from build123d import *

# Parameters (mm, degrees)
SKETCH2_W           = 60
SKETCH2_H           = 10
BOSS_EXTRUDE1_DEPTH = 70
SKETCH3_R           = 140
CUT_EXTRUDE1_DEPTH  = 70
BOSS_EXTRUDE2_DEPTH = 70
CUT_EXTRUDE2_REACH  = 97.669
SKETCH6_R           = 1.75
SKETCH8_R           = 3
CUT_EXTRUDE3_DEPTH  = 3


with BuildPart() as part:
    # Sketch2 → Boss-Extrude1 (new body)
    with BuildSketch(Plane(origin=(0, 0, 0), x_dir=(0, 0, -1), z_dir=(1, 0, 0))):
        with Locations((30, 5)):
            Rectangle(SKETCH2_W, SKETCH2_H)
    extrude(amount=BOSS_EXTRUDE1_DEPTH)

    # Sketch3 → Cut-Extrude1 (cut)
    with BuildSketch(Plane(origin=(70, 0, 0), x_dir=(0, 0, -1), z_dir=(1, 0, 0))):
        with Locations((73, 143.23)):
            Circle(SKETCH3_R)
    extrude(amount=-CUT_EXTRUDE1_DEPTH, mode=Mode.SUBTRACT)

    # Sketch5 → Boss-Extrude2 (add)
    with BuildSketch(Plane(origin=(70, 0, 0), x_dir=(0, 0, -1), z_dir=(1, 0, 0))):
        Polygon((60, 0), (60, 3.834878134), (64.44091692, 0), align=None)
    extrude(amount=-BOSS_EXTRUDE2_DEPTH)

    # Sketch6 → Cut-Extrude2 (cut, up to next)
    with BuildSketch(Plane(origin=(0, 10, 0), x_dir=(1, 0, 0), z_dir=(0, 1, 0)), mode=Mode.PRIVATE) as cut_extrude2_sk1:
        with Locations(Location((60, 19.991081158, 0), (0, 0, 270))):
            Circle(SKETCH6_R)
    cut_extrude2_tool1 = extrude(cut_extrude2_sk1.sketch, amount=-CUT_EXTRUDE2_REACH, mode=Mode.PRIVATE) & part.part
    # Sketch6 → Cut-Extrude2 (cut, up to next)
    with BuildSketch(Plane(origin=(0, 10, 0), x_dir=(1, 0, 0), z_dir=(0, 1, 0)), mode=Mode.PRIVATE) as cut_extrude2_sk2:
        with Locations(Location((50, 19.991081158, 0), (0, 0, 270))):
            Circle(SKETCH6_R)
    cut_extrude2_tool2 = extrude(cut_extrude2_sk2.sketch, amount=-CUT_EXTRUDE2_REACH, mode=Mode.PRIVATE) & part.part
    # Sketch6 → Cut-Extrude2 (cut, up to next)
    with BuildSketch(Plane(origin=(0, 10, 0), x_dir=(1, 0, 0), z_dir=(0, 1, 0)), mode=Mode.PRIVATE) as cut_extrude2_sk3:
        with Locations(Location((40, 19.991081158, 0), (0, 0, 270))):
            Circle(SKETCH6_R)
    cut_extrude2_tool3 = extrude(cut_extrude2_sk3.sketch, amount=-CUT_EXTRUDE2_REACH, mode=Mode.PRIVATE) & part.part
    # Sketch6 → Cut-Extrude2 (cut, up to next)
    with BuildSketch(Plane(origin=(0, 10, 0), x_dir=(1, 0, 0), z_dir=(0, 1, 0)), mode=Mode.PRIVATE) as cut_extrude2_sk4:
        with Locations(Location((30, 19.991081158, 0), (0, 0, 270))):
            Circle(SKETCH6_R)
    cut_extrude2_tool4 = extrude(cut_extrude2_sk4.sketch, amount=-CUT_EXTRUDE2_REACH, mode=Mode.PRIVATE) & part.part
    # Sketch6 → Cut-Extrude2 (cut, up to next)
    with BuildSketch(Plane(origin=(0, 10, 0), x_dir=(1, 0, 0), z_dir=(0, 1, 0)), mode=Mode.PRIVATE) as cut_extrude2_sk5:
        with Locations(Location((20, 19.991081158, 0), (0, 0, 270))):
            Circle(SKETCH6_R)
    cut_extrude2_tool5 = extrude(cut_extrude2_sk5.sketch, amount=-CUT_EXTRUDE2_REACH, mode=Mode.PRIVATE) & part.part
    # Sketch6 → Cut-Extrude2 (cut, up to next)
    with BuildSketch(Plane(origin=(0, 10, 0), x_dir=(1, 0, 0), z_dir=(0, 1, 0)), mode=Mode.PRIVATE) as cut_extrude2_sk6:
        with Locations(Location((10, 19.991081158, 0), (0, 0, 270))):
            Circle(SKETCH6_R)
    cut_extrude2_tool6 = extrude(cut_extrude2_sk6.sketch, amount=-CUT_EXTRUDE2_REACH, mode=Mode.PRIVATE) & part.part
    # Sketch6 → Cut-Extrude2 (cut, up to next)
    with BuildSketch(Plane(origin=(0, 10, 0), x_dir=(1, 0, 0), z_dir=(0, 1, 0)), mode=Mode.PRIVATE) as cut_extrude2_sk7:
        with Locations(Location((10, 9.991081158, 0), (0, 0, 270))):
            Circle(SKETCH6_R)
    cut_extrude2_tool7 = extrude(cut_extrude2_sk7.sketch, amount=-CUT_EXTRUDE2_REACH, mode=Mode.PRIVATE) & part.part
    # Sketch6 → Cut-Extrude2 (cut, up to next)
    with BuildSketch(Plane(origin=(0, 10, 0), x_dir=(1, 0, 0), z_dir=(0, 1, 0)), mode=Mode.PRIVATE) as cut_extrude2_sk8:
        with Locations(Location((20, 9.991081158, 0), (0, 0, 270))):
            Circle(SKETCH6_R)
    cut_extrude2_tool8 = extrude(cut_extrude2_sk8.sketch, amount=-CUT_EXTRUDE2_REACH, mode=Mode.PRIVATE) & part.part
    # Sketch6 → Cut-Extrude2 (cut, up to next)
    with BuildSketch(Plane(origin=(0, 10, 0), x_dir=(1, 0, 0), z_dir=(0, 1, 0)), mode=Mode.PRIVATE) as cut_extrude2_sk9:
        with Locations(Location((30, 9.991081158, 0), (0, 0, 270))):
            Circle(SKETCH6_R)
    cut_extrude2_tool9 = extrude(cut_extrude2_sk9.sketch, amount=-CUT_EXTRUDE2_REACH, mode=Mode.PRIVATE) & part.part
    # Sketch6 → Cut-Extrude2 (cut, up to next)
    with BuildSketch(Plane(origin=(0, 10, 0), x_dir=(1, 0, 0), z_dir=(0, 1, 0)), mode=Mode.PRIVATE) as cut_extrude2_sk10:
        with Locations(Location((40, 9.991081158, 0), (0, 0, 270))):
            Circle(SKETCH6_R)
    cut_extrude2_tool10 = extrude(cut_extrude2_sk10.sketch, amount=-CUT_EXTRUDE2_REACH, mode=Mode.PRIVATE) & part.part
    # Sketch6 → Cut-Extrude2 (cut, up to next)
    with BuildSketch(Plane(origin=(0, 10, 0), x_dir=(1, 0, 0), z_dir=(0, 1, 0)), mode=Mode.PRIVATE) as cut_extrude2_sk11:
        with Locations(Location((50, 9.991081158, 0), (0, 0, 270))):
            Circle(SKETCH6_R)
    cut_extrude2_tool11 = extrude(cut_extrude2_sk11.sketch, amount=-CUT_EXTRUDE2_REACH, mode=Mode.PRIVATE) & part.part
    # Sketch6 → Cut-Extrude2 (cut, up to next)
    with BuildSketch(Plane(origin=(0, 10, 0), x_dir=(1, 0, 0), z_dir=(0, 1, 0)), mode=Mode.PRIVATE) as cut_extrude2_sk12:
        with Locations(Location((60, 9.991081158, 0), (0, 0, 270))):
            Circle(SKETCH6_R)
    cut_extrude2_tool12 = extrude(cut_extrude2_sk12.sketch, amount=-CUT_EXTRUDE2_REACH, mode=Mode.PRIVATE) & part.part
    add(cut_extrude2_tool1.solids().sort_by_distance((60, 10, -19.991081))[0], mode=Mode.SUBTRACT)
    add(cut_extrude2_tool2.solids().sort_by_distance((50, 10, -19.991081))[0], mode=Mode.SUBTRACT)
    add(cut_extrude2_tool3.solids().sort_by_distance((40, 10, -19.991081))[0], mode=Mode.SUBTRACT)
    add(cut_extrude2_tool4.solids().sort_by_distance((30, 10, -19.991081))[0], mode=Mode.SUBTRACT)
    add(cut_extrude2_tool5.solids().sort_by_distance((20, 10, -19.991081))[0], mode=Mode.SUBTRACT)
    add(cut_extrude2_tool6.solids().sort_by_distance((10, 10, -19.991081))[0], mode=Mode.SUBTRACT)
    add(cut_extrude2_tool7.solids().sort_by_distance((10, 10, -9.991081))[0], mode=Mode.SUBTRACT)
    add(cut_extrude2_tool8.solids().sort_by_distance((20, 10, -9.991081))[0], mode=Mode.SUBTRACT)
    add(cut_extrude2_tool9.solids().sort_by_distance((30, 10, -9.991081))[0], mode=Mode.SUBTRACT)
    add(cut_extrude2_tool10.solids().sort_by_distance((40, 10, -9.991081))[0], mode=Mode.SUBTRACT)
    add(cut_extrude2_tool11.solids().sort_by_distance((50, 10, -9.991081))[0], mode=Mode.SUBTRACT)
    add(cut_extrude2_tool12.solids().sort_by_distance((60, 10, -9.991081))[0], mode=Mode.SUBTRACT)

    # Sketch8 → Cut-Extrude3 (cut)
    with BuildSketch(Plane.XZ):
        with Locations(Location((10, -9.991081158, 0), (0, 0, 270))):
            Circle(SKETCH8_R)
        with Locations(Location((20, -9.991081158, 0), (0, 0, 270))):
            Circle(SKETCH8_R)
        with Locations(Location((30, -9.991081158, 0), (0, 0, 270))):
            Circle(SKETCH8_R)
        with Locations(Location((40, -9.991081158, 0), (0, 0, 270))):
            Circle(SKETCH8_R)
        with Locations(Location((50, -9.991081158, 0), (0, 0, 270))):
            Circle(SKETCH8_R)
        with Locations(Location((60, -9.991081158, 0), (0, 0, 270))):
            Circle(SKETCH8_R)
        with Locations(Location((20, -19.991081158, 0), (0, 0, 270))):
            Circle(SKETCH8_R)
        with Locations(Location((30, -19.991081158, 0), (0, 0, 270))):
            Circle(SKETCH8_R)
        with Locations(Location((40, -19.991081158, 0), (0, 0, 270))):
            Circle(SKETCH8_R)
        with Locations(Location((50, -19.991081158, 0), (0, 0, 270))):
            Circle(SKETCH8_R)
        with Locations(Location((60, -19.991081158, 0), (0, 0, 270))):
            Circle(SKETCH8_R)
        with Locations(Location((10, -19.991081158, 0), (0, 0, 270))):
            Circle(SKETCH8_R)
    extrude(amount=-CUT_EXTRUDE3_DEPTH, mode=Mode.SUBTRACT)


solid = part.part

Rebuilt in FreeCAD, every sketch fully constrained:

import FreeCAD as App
import Part
import Sketcher
from FreeCAD import Vector

doc = App.newDocument("Part")
body = doc.addObject("PartDesign::Body", "Body")

# Sketch on YZ plane
sketch1 = body.newObject("Sketcher::SketchObject", "Sketch")
sketch1.AttachmentSupport = (doc.getObject("YZ_Plane"), [""])
sketch1.MapMode = "FlatFace"
sketch1.addGeometry([
    Part.LineSegment(Vector(10, 0, 0), Vector(0, 0, 0)),
    Part.LineSegment(Vector(0, 0, 0), Vector(0, -60, 0)),
    Part.LineSegment(Vector(0, -60, 0), Vector(10, -60, 0)),
    Part.LineSegment(Vector(10, -60, 0), Vector(10, 0, 0)),
], False)
sketch1.addConstraint([
    Sketcher.Constraint("Coincident", 0, 2, 1, 1),
    Sketcher.Constraint("Coincident", 1, 2, 2, 1),
    Sketcher.Constraint("Coincident", 2, 2, 3, 1),
    Sketcher.Constraint("Coincident", 3, 2, 0, 1),
    Sketcher.Constraint("Horizontal", 0),
    Sketcher.Constraint("Vertical", 1),
    Sketcher.Constraint("Horizontal", 2),
    Sketcher.Constraint("Vertical", 3),
    Sketcher.Constraint("Coincident", 0, 2, -1, 1),
    Sketcher.Constraint("DistanceX", 0, 2, 0, 1, 10.0),
    Sketcher.Constraint("DistanceY", 1, 2, 1, 1, 60.0),
])
pad1 = body.newObject("PartDesign::Pad", "Pad")
pad1.Profile = sketch1
pad1.Length = 70

# Sketch on YZ plane
sketch2 = body.newObject("Sketcher::SketchObject", "Sketch001")
sketch2.AttachmentSupport = (doc.getObject("YZ_Plane"), [""])
sketch2.MapMode = "FlatFace"
sketch2.AttachmentOffset = App.Placement(Vector(0, 0, 70), App.Rotation())
sketch2.addGeometry(Part.Circle(Vector(143, -73, 0), Vector(0, 0, 1), 140), False)
sketch2.addConstraint([
    Sketcher.Constraint("Diameter", 0, 280.0),
    Sketcher.Constraint("DistanceY", 0, 3, -1, 1, 73.0),
    Sketcher.Constraint("DistanceX", -1, 1, 0, 3, 143.23),
])
pocket1 = body.newObject("PartDesign::Pocket", "Pocket")
pocket1.Profile = sketch2
pocket1.Length = 70

# Sketch on YZ plane
sketch3 = body.newObject("Sketcher::SketchObject", "Sketch002")
sketch3.AttachmentSupport = (doc.getObject("YZ_Plane"), [""])
sketch3.MapMode = "FlatFace"
sketch3.AttachmentOffset = App.Placement(Vector(0, 0, 70), App.Rotation())
sketch3.addGeometry([
    Part.LineSegment(Vector(3.8, -60, 0), Vector(0, -60, 0)),
    Part.LineSegment(Vector(0, -60, 0), Vector(0, -64.4, 0)),
    Part.LineSegment(Vector(0, -64.4, 0), Vector(3.8, -60, 0)),
], False)
sketch3.addConstraint([
    Sketcher.Constraint("Coincident", 0, 2, 1, 1),
    Sketcher.Constraint("Coincident", 1, 2, 2, 1),
    Sketcher.Constraint("Coincident", 2, 2, 0, 1),
    Sketcher.Constraint("Horizontal", 0),
    Sketcher.Constraint("Vertical", 1),
    Sketcher.Constraint("PointOnObject", 0, 2, -2),
    Sketcher.Constraint("DistanceY", 0, 2, -1, 1, 60.0),
    Sketcher.Constraint("DistanceX", 0, 2, 0, 1, 3.834878),
    Sketcher.Constraint("Distance", 2, 5.867541),
])
pad2 = body.newObject("PartDesign::Pad", "Pad001")
pad2.Profile = sketch3
pad2.Length = 70
pad2.Reversed = True

# Sketch on XZ plane
sketch4 = body.newObject("Sketcher::SketchObject", "Sketch003")
sketch4.AttachmentSupport = (doc.getObject("XZ_Plane"), [""])
sketch4.MapMode = "FlatFace"
sketch4.AttachmentOffset = App.Placement(Vector(0, 0, -10), App.Rotation())
sketch4.addGeometry(Part.Circle(Vector(60, -20, 0), Vector(0, 0, 1), 1.8), False)
sketch4.addConstraint([
    Sketcher.Constraint("Diameter", 0, 3.5),
    Sketcher.Constraint("DistanceX", -1, 1, 0, 3, 60.0),
    Sketcher.Constraint("DistanceY", 0, 3, -1, 1, 19.991081),
])
pocket2 = body.newObject("PartDesign::Pocket", "Pocket001")
pocket2.Profile = sketch4
pocket2.Type = "UpToFirst"
pocket2.Reversed = True

# Sketch on XZ plane
sketch5 = body.newObject("Sketcher::SketchObject", "Sketch004")
sketch5.AttachmentSupport = (doc.getObject("XZ_Plane"), [""])
sketch5.MapMode = "FlatFace"
sketch5.AttachmentOffset = App.Placement(Vector(0, 0, -10), App.Rotation())
sketch5.addGeometry(Part.Circle(Vector(50, -20, 0), Vector(0, 0, 1), 1.8), False)
sketch5.addConstraint([
    Sketcher.Constraint("Diameter", 0, 3.5),
    Sketcher.Constraint("DistanceX", -1, 1, 0, 3, 50.0),
    Sketcher.Constraint("DistanceY", 0, 3, -1, 1, 19.991081),
])
pocket3 = body.newObject("PartDesign::Pocket", "Pocket002")
pocket3.Profile = sketch5
pocket3.Type = "UpToFirst"
pocket3.Reversed = True

# Sketch on XZ plane
sketch6 = body.newObject("Sketcher::SketchObject", "Sketch005")
sketch6.AttachmentSupport = (doc.getObject("XZ_Plane"), [""])
sketch6.MapMode = "FlatFace"
sketch6.AttachmentOffset = App.Placement(Vector(0, 0, -10), App.Rotation())
sketch6.addGeometry(Part.Circle(Vector(40, -20, 0), Vector(0, 0, 1), 1.8), False)
sketch6.addConstraint([
    Sketcher.Constraint("Diameter", 0, 3.5),
    Sketcher.Constraint("DistanceX", -1, 1, 0, 3, 40.0),
    Sketcher.Constraint("DistanceY", 0, 3, -1, 1, 19.991081),
])
pocket4 = body.newObject("PartDesign::Pocket", "Pocket003")
pocket4.Profile = sketch6
pocket4.Type = "UpToFirst"
pocket4.Reversed = True

# Sketch on XZ plane
sketch7 = body.newObject("Sketcher::SketchObject", "Sketch006")
sketch7.AttachmentSupport = (doc.getObject("XZ_Plane"), [""])
sketch7.MapMode = "FlatFace"
sketch7.AttachmentOffset = App.Placement(Vector(0, 0, -10), App.Rotation())
sketch7.addGeometry(Part.Circle(Vector(30, -20, 0), Vector(0, 0, 1), 1.8), False)
sketch7.addConstraint([
    Sketcher.Constraint("Diameter", 0, 3.5),
    Sketcher.Constraint("DistanceX", -1, 1, 0, 3, 30.0),
    Sketcher.Constraint("DistanceY", 0, 3, -1, 1, 19.991081),
])
pocket5 = body.newObject("PartDesign::Pocket", "Pocket004")
pocket5.Profile = sketch7
pocket5.Type = "UpToFirst"
pocket5.Reversed = True

# Sketch on XZ plane
sketch8 = body.newObject("Sketcher::SketchObject", "Sketch007")
sketch8.AttachmentSupport = (doc.getObject("XZ_Plane"), [""])
sketch8.MapMode = "FlatFace"
sketch8.AttachmentOffset = App.Placement(Vector(0, 0, -10), App.Rotation())
sketch8.addGeometry(Part.Circle(Vector(20, -20, 0), Vector(0, 0, 1), 1.8), False)
sketch8.addConstraint([
    Sketcher.Constraint("Diameter", 0, 3.5),
    Sketcher.Constraint("DistanceX", -1, 1, 0, 3, 20.0),
    Sketcher.Constraint("DistanceY", 0, 3, -1, 1, 19.991081),
])
pocket6 = body.newObject("PartDesign::Pocket", "Pocket005")
pocket6.Profile = sketch8
pocket6.Type = "UpToFirst"
pocket6.Reversed = True

# Sketch on XZ plane
sketch9 = body.newObject("Sketcher::SketchObject", "Sketch008")
sketch9.AttachmentSupport = (doc.getObject("XZ_Plane"), [""])
sketch9.MapMode = "FlatFace"
sketch9.AttachmentOffset = App.Placement(Vector(0, 0, -10), App.Rotation())
sketch9.addGeometry(Part.Circle(Vector(10, -20, 0), Vector(0, 0, 1), 1.8), False)
sketch9.addConstraint([
    Sketcher.Constraint("Diameter", 0, 3.5),
    Sketcher.Constraint("DistanceX", -1, 1, 0, 3, 10.0),
    Sketcher.Constraint("DistanceY", 0, 3, -1, 1, 19.991081),
])
pocket7 = body.newObject("PartDesign::Pocket", "Pocket006")
pocket7.Profile = sketch9
pocket7.Type = "UpToFirst"
pocket7.Reversed = True

# Sketch on XZ plane
sketch10 = body.newObject("Sketcher::SketchObject", "Sketch009")
sketch10.AttachmentSupport = (doc.getObject("XZ_Plane"), [""])
sketch10.MapMode = "FlatFace"
sketch10.AttachmentOffset = App.Placement(Vector(0, 0, -10), App.Rotation())
sketch10.addGeometry(Part.Circle(Vector(10, -10, 0), Vector(0, 0, 1), 1.8), False)
sketch10.addConstraint([
    Sketcher.Constraint("Diameter", 0, 3.5),
    Sketcher.Constraint("DistanceX", -1, 1, 0, 3, 10.0),
    Sketcher.Constraint("DistanceY", 0, 3, -1, 1, 9.991081),
])
pocket8 = body.newObject("PartDesign::Pocket", "Pocket007")
pocket8.Profile = sketch10
pocket8.Type = "UpToFirst"
pocket8.Reversed = True

# Sketch on XZ plane
sketch11 = body.newObject("Sketcher::SketchObject", "Sketch010")
sketch11.AttachmentSupport = (doc.getObject("XZ_Plane"), [""])
sketch11.MapMode = "FlatFace"
sketch11.AttachmentOffset = App.Placement(Vector(0, 0, -10), App.Rotation())
sketch11.addGeometry(Part.Circle(Vector(20, -10, 0), Vector(0, 0, 1), 1.8), False)
sketch11.addConstraint([
    Sketcher.Constraint("Diameter", 0, 3.5),
    Sketcher.Constraint("DistanceX", -1, 1, 0, 3, 20.0),
    Sketcher.Constraint("DistanceY", 0, 3, -1, 1, 9.991081),
])
pocket9 = body.newObject("PartDesign::Pocket", "Pocket008")
pocket9.Profile = sketch11
pocket9.Type = "UpToFirst"
pocket9.Reversed = True

# Sketch on XZ plane
sketch12 = body.newObject("Sketcher::SketchObject", "Sketch011")
sketch12.AttachmentSupport = (doc.getObject("XZ_Plane"), [""])
sketch12.MapMode = "FlatFace"
sketch12.AttachmentOffset = App.Placement(Vector(0, 0, -10), App.Rotation())
sketch12.addGeometry(Part.Circle(Vector(30, -10, 0), Vector(0, 0, 1), 1.8), False)
sketch12.addConstraint([
    Sketcher.Constraint("Diameter", 0, 3.5),
    Sketcher.Constraint("DistanceX", -1, 1, 0, 3, 30.0),
    Sketcher.Constraint("DistanceY", 0, 3, -1, 1, 9.991081),
])
pocket10 = body.newObject("PartDesign::Pocket", "Pocket009")
pocket10.Profile = sketch12
pocket10.Type = "UpToFirst"
pocket10.Reversed = True

# Sketch on XZ plane
sketch13 = body.newObject("Sketcher::SketchObject", "Sketch012")
sketch13.AttachmentSupport = (doc.getObject("XZ_Plane"), [""])
sketch13.MapMode = "FlatFace"
sketch13.AttachmentOffset = App.Placement(Vector(0, 0, -10), App.Rotation())
sketch13.addGeometry(Part.Circle(Vector(40, -10, 0), Vector(0, 0, 1), 1.8), False)
sketch13.addConstraint([
    Sketcher.Constraint("Diameter", 0, 3.5),
    Sketcher.Constraint("DistanceX", -1, 1, 0, 3, 40.0),
    Sketcher.Constraint("DistanceY", 0, 3, -1, 1, 9.991081),
])
pocket11 = body.newObject("PartDesign::Pocket", "Pocket010")
pocket11.Profile = sketch13
pocket11.Type = "UpToFirst"
pocket11.Reversed = True

# Sketch on XZ plane
sketch14 = body.newObject("Sketcher::SketchObject", "Sketch013")
sketch14.AttachmentSupport = (doc.getObject("XZ_Plane"), [""])
sketch14.MapMode = "FlatFace"
sketch14.AttachmentOffset = App.Placement(Vector(0, 0, -10), App.Rotation())
sketch14.addGeometry(Part.Circle(Vector(50, -10, 0), Vector(0, 0, 1), 1.8), False)
sketch14.addConstraint([
    Sketcher.Constraint("Diameter", 0, 3.5),
    Sketcher.Constraint("DistanceX", -1, 1, 0, 3, 50.0),
    Sketcher.Constraint("DistanceY", 0, 3, -1, 1, 9.991081),
])
pocket12 = body.newObject("PartDesign::Pocket", "Pocket011")
pocket12.Profile = sketch14
pocket12.Type = "UpToFirst"
pocket12.Reversed = True

# Sketch on XZ plane
sketch15 = body.newObject("Sketcher::SketchObject", "Sketch014")
sketch15.AttachmentSupport = (doc.getObject("XZ_Plane"), [""])
sketch15.MapMode = "FlatFace"
sketch15.AttachmentOffset = App.Placement(Vector(0, 0, -10), App.Rotation())
sketch15.addGeometry(Part.Circle(Vector(60, -10, 0), Vector(0, 0, 1), 1.8), False)
sketch15.addConstraint([
    Sketcher.Constraint("Diameter", 0, 3.5),
    Sketcher.Constraint("DistanceX", -1, 1, 0, 3, 60.0),
    Sketcher.Constraint("DistanceY", 0, 3, -1, 1, 9.991081),
])
pocket13 = body.newObject("PartDesign::Pocket", "Pocket012")
pocket13.Profile = sketch15
pocket13.Type = "UpToFirst"
pocket13.Reversed = True

# Sketch on XZ plane
sketch16 = body.newObject("Sketcher::SketchObject", "Sketch015")
sketch16.AttachmentSupport = (doc.getObject("XZ_Plane"), [""])
sketch16.MapMode = "FlatFace"
sketch16.addGeometry([
    Part.Circle(Vector(10, -10, 0), Vector(0, 0, 1), 3),  # 0
    Part.Circle(Vector(20, -10, 0), Vector(0, 0, 1), 3),  # 1
    Part.Circle(Vector(30, -10, 0), Vector(0, 0, 1), 3),  # 2
    Part.Circle(Vector(40, -10, 0), Vector(0, 0, 1), 3),  # 3
    Part.Circle(Vector(50, -10, 0), Vector(0, 0, 1), 3),  # 4
    Part.Circle(Vector(60, -10, 0), Vector(0, 0, 1), 3),  # 5
    Part.Circle(Vector(20, -20, 0), Vector(0, 0, 1), 3),  # 6
    Part.Circle(Vector(30, -20, 0), Vector(0, 0, 1), 3),  # 7
    Part.Circle(Vector(40, -20, 0), Vector(0, 0, 1), 3),  # 8
    Part.Circle(Vector(50, -20, 0), Vector(0, 0, 1), 3),  # 9
    Part.Circle(Vector(60, -20, 0), Vector(0, 0, 1), 3),  # 10
    Part.Circle(Vector(10, -20, 0), Vector(0, 0, 1), 3),  # 11
], False)
sketch16.addConstraint([
    Sketcher.Constraint("Equal", 0, 1),
    Sketcher.Constraint("Equal", 1, 2),
    Sketcher.Constraint("Equal", 2, 3),
    Sketcher.Constraint("Equal", 3, 4),
    Sketcher.Constraint("Equal", 4, 5),
    Sketcher.Constraint("Equal", 5, 6),
    Sketcher.Constraint("Equal", 6, 7),
    Sketcher.Constraint("Equal", 7, 8),
    Sketcher.Constraint("Equal", 8, 9),
    Sketcher.Constraint("Equal", 9, 10),
    Sketcher.Constraint("Equal", 10, 11),
    Sketcher.Constraint("Horizontal", 0, 3, 1, 3),
    Sketcher.Constraint("Horizontal", 1, 3, 2, 3),
    Sketcher.Constraint("Horizontal", 2, 3, 3, 3),
    Sketcher.Constraint("Horizontal", 3, 3, 4, 3),
    Sketcher.Constraint("Horizontal", 4, 3, 5, 3),
    Sketcher.Constraint("Horizontal", 6, 3, 7, 3),
    Sketcher.Constraint("Horizontal", 7, 3, 8, 3),
    Sketcher.Constraint("Horizontal", 8, 3, 9, 3),
    Sketcher.Constraint("Horizontal", 9, 3, 10, 3),
    Sketcher.Constraint("Horizontal", 10, 3, 11, 3),
    Sketcher.Constraint("Vertical", 1, 3, 6, 3),
    Sketcher.Constraint("Vertical", 2, 3, 7, 3),
    Sketcher.Constraint("Vertical", 3, 3, 8, 3),
    Sketcher.Constraint("Vertical", 4, 3, 9, 3),
    Sketcher.Constraint("Vertical", 5, 3, 10, 3),
    Sketcher.Constraint("Vertical", 0, 3, 11, 3),
    Sketcher.Constraint("Diameter", 0, 6.0),
    Sketcher.Constraint("DistanceX", -1, 1, 0, 3, 10.0),
    Sketcher.Constraint("DistanceX", -1, 1, 1, 3, 20.0),
    Sketcher.Constraint("DistanceX", -1, 1, 2, 3, 30.0),
    Sketcher.Constraint("DistanceX", -1, 1, 3, 3, 40.0),
    Sketcher.Constraint("DistanceX", -1, 1, 4, 3, 50.0),
    Sketcher.Constraint("DistanceX", -1, 1, 5, 3, 60.0),
    Sketcher.Constraint("DistanceY", 6, 3, 1, 3, 10.0),
    Sketcher.Constraint("DistanceY", 0, 3, -1, 1, 9.991081),
])
pocket14 = body.newObject("PartDesign::Pocket", "Pocket013")
pocket14.Profile = sketch16
pocket14.Length = 3

doc.recompute()
